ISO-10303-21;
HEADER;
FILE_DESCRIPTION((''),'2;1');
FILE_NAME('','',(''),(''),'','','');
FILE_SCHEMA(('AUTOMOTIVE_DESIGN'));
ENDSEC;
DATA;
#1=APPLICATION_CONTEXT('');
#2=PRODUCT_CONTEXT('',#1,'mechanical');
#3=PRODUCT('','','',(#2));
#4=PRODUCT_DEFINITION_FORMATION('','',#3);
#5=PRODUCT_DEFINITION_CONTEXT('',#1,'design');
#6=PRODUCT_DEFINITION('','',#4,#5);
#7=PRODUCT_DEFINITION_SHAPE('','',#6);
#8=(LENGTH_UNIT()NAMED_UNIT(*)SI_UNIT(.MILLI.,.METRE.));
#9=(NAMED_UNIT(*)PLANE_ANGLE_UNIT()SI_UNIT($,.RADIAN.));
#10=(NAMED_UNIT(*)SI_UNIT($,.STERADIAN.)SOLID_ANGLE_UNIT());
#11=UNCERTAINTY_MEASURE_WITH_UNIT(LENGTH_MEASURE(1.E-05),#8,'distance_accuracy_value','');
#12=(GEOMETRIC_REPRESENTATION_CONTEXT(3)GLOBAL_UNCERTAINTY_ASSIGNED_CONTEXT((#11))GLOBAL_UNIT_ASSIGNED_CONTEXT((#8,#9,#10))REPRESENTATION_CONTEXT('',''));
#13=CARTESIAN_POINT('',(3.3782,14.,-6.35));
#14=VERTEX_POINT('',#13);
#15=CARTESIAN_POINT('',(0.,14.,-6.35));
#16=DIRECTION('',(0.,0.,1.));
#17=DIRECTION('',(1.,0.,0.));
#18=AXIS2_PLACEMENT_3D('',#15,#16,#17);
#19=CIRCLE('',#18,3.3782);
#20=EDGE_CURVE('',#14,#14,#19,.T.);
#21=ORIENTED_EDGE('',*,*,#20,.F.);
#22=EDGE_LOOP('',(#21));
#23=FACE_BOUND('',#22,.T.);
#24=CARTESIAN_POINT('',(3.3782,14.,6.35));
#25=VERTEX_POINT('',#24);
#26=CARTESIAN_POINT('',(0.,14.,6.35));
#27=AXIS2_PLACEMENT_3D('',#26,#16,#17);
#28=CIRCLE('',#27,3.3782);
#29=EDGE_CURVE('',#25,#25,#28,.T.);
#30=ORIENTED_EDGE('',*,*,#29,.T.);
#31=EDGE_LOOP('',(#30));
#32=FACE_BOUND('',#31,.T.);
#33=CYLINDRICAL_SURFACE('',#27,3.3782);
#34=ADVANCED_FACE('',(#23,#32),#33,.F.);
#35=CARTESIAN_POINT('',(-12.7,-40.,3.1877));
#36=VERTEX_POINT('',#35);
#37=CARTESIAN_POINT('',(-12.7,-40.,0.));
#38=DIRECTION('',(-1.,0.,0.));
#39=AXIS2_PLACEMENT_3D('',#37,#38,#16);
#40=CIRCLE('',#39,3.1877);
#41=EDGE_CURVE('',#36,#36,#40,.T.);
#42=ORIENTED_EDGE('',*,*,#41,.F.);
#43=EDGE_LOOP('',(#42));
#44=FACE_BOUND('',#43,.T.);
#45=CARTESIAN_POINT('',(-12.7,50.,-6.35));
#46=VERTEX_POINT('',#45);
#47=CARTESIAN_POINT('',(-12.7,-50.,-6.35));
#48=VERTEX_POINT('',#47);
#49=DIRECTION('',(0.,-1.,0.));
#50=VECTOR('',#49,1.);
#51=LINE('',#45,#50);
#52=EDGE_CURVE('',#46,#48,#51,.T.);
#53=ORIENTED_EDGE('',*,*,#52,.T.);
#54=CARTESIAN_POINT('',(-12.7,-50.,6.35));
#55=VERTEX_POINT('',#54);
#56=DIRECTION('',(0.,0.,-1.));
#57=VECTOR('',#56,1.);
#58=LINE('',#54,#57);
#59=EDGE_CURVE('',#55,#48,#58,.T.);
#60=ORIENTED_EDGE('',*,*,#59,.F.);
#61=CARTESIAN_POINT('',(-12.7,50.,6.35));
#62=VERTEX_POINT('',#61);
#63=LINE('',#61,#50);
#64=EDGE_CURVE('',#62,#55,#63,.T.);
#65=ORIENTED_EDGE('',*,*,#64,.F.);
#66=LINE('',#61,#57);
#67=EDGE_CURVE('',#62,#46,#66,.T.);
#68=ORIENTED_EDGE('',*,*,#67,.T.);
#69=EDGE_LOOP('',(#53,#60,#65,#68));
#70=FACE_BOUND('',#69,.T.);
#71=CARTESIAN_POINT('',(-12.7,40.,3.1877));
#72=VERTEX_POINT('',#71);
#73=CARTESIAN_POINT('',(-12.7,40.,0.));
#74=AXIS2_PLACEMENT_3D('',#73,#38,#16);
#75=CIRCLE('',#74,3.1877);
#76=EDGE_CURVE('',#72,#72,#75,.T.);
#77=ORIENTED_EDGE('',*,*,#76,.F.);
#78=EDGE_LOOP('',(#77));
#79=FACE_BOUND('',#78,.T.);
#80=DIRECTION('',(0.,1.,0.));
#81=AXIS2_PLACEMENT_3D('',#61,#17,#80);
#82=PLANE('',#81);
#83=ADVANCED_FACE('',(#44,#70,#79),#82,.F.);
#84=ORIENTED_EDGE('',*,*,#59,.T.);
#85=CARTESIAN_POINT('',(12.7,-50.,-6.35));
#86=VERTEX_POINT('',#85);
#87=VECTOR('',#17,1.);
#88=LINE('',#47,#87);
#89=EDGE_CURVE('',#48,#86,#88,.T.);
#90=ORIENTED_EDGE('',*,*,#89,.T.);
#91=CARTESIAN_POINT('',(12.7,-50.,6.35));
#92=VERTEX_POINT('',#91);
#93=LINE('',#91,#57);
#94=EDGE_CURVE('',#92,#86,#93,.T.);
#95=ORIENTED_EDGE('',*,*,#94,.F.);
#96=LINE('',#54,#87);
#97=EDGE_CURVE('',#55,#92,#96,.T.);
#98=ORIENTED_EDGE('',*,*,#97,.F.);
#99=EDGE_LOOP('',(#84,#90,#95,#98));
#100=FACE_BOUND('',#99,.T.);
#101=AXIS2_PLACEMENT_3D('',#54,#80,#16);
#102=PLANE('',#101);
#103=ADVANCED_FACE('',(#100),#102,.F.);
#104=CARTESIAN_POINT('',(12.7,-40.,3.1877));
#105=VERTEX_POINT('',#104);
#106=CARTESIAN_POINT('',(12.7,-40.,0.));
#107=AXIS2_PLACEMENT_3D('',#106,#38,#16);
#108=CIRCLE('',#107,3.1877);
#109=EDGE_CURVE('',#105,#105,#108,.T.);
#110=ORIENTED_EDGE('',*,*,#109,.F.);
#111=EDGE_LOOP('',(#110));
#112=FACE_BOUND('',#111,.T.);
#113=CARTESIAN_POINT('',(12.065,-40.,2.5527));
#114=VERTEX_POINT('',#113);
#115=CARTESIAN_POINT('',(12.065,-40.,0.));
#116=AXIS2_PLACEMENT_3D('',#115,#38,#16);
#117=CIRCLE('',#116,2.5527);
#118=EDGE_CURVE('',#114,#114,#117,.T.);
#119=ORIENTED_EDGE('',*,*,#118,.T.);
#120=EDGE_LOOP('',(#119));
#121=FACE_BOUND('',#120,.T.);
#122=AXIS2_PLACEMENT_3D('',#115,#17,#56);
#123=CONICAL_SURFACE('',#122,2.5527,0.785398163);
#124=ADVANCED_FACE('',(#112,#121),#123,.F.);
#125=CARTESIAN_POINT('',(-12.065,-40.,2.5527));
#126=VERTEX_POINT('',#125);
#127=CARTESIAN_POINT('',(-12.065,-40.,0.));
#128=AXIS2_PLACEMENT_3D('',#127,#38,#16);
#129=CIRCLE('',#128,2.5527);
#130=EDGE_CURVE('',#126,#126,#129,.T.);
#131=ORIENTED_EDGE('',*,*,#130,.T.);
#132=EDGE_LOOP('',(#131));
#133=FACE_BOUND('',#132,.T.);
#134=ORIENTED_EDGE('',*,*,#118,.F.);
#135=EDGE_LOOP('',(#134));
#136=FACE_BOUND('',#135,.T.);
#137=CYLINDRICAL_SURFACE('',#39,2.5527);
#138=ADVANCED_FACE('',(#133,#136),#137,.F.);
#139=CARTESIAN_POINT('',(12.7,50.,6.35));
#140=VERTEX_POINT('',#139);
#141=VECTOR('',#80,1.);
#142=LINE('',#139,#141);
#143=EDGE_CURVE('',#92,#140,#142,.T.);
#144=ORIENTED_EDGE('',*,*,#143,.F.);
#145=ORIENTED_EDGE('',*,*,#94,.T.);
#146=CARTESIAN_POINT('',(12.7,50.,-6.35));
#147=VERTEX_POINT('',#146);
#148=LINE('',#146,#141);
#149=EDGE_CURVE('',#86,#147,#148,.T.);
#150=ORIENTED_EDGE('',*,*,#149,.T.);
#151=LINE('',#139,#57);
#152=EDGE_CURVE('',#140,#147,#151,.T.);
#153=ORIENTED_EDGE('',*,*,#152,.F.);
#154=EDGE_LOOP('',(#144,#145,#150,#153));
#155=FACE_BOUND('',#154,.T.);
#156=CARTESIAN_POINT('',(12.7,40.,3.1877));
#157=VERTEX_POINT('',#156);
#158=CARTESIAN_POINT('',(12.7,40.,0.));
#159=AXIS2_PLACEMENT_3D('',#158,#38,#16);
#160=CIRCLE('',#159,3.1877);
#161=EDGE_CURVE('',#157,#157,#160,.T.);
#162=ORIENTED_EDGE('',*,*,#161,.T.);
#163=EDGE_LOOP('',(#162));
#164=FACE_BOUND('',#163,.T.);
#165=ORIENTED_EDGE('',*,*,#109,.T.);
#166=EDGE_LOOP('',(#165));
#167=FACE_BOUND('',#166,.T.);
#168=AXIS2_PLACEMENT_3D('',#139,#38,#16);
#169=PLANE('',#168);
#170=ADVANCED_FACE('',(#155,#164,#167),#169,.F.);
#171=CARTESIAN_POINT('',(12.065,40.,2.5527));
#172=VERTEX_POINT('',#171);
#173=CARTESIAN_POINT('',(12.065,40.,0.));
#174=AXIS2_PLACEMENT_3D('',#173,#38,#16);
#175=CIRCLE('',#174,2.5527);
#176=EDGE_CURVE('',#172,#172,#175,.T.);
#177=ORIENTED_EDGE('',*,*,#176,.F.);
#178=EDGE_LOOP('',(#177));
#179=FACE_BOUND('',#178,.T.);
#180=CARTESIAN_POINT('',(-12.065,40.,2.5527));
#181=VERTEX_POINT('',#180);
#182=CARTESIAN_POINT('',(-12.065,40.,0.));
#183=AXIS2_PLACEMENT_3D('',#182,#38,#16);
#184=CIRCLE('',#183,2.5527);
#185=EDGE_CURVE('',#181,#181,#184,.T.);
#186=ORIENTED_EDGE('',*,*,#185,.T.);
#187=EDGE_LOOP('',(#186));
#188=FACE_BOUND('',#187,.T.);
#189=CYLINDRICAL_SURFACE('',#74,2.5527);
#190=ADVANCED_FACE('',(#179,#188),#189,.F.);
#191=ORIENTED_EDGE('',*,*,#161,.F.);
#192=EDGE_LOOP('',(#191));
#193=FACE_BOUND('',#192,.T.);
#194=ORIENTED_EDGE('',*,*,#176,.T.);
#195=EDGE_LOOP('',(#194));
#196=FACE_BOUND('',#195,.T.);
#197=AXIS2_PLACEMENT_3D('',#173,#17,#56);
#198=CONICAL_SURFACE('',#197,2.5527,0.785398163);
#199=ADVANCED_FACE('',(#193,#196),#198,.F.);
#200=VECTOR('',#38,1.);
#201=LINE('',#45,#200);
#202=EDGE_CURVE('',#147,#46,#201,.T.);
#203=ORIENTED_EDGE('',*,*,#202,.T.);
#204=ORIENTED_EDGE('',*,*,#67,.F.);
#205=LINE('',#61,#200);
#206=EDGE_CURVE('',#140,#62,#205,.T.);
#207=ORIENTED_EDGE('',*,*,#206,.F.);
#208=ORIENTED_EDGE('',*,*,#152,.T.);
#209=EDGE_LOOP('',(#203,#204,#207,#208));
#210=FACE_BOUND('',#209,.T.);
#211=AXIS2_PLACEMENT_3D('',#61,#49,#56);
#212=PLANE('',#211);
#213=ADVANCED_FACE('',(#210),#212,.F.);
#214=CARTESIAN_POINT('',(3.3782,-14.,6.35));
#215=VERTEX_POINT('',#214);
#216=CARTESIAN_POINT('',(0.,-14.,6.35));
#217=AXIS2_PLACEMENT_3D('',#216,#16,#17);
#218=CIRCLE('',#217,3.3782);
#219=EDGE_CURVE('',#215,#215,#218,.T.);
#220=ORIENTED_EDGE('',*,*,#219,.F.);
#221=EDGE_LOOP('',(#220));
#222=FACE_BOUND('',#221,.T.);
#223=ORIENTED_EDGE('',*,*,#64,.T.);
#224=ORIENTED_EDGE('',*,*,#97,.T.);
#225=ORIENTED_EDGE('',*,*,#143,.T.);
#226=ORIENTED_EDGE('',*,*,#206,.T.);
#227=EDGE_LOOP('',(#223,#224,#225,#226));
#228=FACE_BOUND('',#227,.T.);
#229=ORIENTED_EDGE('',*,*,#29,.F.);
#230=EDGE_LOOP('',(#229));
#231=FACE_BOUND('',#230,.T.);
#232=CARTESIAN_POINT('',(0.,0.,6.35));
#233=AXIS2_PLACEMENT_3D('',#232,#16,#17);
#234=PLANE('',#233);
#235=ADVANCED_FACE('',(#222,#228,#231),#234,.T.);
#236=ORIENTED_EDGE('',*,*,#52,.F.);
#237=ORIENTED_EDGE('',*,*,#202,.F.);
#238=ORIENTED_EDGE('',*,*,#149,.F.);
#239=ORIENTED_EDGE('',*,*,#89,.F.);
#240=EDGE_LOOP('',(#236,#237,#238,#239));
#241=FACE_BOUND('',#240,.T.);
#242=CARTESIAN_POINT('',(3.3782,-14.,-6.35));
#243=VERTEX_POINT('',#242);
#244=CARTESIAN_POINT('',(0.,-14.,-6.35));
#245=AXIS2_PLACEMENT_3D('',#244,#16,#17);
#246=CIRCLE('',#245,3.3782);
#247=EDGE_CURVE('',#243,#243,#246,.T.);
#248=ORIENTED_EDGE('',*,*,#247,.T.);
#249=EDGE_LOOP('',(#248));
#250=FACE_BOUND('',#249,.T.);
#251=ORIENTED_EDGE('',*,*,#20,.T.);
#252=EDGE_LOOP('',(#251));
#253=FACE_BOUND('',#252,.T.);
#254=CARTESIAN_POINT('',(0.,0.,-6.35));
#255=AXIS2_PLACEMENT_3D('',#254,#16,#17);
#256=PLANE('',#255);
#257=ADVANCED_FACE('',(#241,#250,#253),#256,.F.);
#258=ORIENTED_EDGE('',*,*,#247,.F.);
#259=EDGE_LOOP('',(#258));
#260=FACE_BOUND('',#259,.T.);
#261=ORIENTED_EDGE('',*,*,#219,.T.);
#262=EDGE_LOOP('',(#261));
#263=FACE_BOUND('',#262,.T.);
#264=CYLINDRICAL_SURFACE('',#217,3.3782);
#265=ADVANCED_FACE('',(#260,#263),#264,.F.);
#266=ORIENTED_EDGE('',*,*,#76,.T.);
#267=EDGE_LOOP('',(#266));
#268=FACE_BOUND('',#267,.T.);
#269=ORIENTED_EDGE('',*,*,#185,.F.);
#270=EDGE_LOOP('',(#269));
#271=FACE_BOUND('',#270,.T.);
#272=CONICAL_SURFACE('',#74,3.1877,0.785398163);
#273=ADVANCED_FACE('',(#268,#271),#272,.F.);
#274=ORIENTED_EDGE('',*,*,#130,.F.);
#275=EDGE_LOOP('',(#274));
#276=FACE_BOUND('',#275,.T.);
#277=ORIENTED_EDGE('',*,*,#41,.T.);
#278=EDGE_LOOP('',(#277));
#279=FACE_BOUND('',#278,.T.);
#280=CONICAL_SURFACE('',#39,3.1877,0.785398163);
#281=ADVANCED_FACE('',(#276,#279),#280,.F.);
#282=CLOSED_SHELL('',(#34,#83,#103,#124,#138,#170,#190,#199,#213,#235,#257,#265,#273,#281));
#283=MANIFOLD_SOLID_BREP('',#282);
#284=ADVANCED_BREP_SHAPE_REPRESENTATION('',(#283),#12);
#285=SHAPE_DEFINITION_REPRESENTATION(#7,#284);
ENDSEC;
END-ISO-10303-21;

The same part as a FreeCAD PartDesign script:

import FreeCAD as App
import Part
import Sketcher

V = App.Vector
Q = App.Units.Quantity


def add_polygon(sketch, points):
    """Adds a closed chain of lines whose ends are joined by coincident constraints."""
    first, n = sketch.GeometryCount, len(points)
    for a, b in zip(points, points[1:] + points[:1]):
        sketch.addGeometry(Part.LineSegment(App.Vector(*a, 0), App.Vector(*b, 0)), False)
    for i in range(n):
        sketch.addConstraint(Sketcher.Constraint("Coincident", first + i, 2, first + (i + 1) % n, 1))

doc = App.newDocument("Part")
body = doc.addObject("PartDesign::Body", "Body")

# Sketch on XY plane
sketch1 = body.newObject("Sketcher::SketchObject", "Sketch")
sketch1.AttachmentSupport = (doc.getObject("XY_Plane"), [""])
sketch1.MapMode = "FlatFace"
add_polygon(sketch1, [(-13, 50), (-13, -50), (13, -50), (13, 50)])  # lines 0-3
sketch1.addConstraint([
    Sketcher.Constraint("Vertical", 0),
    Sketcher.Constraint("Horizontal", 1),
    Sketcher.Constraint("Vertical", 2),
    Sketcher.Constraint("Horizontal", 3),
    Sketcher.Constraint("Symmetric", 0, 2, 2, 2, -1, 1),
    Sketcher.Constraint("DistanceX", 1, 1, 1, 2, Q("1 in")),
    Sketcher.Constraint("DistanceY", 0, 2, 0, 1, Q("100 mm")),
])
pad1 = body.newObject("PartDesign::Pad", "Pad")
pad1.Profile = sketch1
pad1.Length = Q("0.5 in")
pad1.Midplane = True

# Sketch on XY plane
sketch2 = body.newObject("Sketcher::SketchObject", "Sketch001")
sketch2.AttachmentSupport = (doc.getObject("XY_Plane"), [""])
sketch2.MapMode = "FlatFace"
sketch2.AttachmentOffset = App.Placement(V(0, 0, 0.25 * 25.4), App.Rotation())
sketch2.addGeometry([
    Part.Circle(V(0, -14, 0), V(0, 0, 1), 3.4),
    Part.Circle(V(0, 14, 0), V(0, 0, 1), 3.4),
], False)
sketch2.addConstraint([
    Sketcher.Constraint("Equal", 0, 1),
    Sketcher.Constraint("Symmetric", 0, 3, 1, 3, -1, 1),
    Sketcher.Constraint("PointOnObject", 0, 3, -2),
    Sketcher.Constraint("Diameter", 0, Q("0.266 in")),
    Sketcher.Constraint("DistanceY", 0, 3, -1, 1, Q("14 mm")),
])
doc.recompute()
hole = body.newObject("PartDesign::Hole", "Hole")
hole.Profile = sketch2
hole.ThreadType = "None"
hole.Diameter = Q("0.266 in")
hole.DepthType = "ThroughAll"

# Sketch on XZ plane
sketch3 = body.newObject("Sketcher::SketchObject", "Sketch002")
sketch3.AttachmentSupport = (doc.getObject("XZ_Plane"), [""])
sketch3.MapMode = "FlatFace"
sketch3.AttachmentOffset = App.Placement(V(0, 0, -40), App.Rotation())
add_polygon(sketch3, [(12.7, 0), (-12.7, 0), (-12.7, 3.2), (-12.1, 2.6), (12.1, 2.6), (12.7, 3.2)])  # lines 0-5
sketch3.addConstraint([
    Sketcher.Constraint("Horizontal", 0),
    Sketcher.Constraint("Vertical", 1),
    Sketcher.Constraint("Horizontal", 3),
    Sketcher.Constraint("Vertical", 5),
    Sketcher.Constraint("Symmetric", 0, 2, 5, 2, -1, 1),
    Sketcher.Constraint("Perpendicular", 2, 4),
    Sketcher.Constraint("Horizontal", 1, 2, 4, 2),
    Sketcher.Constraint("Equal", 2, 4),
    Sketcher.Constraint("DistanceX", 0, 2, 0, 1, Q("1 in")),
    Sketcher.Constraint("DistanceX", 3, 1, 3, 2, Q("0.95 in")),
    Sketcher.Constraint("DistanceY", 1, 1, 1, 2, Q("0.1255 in")),
])
groove = body.newObject("PartDesign::Groove", "Groove")
groove.Profile = sketch3
groove.ReferenceAxis = (sketch3, ["H_Axis"])
groove.Angle = 360
doc.recompute()

linearpattern = body.newObject("PartDesign::LinearPattern", "LinearPattern")
linearpattern.Originals = [groove]
linearpattern.Direction = (doc.getObject("Y_Axis"), [""])
linearpattern.Mode = "offset"
linearpattern.Offset = 80
linearpattern.Occurrences = 2
linearpattern.Reversed = True
body.Tip = linearpattern

doc.recompute()
